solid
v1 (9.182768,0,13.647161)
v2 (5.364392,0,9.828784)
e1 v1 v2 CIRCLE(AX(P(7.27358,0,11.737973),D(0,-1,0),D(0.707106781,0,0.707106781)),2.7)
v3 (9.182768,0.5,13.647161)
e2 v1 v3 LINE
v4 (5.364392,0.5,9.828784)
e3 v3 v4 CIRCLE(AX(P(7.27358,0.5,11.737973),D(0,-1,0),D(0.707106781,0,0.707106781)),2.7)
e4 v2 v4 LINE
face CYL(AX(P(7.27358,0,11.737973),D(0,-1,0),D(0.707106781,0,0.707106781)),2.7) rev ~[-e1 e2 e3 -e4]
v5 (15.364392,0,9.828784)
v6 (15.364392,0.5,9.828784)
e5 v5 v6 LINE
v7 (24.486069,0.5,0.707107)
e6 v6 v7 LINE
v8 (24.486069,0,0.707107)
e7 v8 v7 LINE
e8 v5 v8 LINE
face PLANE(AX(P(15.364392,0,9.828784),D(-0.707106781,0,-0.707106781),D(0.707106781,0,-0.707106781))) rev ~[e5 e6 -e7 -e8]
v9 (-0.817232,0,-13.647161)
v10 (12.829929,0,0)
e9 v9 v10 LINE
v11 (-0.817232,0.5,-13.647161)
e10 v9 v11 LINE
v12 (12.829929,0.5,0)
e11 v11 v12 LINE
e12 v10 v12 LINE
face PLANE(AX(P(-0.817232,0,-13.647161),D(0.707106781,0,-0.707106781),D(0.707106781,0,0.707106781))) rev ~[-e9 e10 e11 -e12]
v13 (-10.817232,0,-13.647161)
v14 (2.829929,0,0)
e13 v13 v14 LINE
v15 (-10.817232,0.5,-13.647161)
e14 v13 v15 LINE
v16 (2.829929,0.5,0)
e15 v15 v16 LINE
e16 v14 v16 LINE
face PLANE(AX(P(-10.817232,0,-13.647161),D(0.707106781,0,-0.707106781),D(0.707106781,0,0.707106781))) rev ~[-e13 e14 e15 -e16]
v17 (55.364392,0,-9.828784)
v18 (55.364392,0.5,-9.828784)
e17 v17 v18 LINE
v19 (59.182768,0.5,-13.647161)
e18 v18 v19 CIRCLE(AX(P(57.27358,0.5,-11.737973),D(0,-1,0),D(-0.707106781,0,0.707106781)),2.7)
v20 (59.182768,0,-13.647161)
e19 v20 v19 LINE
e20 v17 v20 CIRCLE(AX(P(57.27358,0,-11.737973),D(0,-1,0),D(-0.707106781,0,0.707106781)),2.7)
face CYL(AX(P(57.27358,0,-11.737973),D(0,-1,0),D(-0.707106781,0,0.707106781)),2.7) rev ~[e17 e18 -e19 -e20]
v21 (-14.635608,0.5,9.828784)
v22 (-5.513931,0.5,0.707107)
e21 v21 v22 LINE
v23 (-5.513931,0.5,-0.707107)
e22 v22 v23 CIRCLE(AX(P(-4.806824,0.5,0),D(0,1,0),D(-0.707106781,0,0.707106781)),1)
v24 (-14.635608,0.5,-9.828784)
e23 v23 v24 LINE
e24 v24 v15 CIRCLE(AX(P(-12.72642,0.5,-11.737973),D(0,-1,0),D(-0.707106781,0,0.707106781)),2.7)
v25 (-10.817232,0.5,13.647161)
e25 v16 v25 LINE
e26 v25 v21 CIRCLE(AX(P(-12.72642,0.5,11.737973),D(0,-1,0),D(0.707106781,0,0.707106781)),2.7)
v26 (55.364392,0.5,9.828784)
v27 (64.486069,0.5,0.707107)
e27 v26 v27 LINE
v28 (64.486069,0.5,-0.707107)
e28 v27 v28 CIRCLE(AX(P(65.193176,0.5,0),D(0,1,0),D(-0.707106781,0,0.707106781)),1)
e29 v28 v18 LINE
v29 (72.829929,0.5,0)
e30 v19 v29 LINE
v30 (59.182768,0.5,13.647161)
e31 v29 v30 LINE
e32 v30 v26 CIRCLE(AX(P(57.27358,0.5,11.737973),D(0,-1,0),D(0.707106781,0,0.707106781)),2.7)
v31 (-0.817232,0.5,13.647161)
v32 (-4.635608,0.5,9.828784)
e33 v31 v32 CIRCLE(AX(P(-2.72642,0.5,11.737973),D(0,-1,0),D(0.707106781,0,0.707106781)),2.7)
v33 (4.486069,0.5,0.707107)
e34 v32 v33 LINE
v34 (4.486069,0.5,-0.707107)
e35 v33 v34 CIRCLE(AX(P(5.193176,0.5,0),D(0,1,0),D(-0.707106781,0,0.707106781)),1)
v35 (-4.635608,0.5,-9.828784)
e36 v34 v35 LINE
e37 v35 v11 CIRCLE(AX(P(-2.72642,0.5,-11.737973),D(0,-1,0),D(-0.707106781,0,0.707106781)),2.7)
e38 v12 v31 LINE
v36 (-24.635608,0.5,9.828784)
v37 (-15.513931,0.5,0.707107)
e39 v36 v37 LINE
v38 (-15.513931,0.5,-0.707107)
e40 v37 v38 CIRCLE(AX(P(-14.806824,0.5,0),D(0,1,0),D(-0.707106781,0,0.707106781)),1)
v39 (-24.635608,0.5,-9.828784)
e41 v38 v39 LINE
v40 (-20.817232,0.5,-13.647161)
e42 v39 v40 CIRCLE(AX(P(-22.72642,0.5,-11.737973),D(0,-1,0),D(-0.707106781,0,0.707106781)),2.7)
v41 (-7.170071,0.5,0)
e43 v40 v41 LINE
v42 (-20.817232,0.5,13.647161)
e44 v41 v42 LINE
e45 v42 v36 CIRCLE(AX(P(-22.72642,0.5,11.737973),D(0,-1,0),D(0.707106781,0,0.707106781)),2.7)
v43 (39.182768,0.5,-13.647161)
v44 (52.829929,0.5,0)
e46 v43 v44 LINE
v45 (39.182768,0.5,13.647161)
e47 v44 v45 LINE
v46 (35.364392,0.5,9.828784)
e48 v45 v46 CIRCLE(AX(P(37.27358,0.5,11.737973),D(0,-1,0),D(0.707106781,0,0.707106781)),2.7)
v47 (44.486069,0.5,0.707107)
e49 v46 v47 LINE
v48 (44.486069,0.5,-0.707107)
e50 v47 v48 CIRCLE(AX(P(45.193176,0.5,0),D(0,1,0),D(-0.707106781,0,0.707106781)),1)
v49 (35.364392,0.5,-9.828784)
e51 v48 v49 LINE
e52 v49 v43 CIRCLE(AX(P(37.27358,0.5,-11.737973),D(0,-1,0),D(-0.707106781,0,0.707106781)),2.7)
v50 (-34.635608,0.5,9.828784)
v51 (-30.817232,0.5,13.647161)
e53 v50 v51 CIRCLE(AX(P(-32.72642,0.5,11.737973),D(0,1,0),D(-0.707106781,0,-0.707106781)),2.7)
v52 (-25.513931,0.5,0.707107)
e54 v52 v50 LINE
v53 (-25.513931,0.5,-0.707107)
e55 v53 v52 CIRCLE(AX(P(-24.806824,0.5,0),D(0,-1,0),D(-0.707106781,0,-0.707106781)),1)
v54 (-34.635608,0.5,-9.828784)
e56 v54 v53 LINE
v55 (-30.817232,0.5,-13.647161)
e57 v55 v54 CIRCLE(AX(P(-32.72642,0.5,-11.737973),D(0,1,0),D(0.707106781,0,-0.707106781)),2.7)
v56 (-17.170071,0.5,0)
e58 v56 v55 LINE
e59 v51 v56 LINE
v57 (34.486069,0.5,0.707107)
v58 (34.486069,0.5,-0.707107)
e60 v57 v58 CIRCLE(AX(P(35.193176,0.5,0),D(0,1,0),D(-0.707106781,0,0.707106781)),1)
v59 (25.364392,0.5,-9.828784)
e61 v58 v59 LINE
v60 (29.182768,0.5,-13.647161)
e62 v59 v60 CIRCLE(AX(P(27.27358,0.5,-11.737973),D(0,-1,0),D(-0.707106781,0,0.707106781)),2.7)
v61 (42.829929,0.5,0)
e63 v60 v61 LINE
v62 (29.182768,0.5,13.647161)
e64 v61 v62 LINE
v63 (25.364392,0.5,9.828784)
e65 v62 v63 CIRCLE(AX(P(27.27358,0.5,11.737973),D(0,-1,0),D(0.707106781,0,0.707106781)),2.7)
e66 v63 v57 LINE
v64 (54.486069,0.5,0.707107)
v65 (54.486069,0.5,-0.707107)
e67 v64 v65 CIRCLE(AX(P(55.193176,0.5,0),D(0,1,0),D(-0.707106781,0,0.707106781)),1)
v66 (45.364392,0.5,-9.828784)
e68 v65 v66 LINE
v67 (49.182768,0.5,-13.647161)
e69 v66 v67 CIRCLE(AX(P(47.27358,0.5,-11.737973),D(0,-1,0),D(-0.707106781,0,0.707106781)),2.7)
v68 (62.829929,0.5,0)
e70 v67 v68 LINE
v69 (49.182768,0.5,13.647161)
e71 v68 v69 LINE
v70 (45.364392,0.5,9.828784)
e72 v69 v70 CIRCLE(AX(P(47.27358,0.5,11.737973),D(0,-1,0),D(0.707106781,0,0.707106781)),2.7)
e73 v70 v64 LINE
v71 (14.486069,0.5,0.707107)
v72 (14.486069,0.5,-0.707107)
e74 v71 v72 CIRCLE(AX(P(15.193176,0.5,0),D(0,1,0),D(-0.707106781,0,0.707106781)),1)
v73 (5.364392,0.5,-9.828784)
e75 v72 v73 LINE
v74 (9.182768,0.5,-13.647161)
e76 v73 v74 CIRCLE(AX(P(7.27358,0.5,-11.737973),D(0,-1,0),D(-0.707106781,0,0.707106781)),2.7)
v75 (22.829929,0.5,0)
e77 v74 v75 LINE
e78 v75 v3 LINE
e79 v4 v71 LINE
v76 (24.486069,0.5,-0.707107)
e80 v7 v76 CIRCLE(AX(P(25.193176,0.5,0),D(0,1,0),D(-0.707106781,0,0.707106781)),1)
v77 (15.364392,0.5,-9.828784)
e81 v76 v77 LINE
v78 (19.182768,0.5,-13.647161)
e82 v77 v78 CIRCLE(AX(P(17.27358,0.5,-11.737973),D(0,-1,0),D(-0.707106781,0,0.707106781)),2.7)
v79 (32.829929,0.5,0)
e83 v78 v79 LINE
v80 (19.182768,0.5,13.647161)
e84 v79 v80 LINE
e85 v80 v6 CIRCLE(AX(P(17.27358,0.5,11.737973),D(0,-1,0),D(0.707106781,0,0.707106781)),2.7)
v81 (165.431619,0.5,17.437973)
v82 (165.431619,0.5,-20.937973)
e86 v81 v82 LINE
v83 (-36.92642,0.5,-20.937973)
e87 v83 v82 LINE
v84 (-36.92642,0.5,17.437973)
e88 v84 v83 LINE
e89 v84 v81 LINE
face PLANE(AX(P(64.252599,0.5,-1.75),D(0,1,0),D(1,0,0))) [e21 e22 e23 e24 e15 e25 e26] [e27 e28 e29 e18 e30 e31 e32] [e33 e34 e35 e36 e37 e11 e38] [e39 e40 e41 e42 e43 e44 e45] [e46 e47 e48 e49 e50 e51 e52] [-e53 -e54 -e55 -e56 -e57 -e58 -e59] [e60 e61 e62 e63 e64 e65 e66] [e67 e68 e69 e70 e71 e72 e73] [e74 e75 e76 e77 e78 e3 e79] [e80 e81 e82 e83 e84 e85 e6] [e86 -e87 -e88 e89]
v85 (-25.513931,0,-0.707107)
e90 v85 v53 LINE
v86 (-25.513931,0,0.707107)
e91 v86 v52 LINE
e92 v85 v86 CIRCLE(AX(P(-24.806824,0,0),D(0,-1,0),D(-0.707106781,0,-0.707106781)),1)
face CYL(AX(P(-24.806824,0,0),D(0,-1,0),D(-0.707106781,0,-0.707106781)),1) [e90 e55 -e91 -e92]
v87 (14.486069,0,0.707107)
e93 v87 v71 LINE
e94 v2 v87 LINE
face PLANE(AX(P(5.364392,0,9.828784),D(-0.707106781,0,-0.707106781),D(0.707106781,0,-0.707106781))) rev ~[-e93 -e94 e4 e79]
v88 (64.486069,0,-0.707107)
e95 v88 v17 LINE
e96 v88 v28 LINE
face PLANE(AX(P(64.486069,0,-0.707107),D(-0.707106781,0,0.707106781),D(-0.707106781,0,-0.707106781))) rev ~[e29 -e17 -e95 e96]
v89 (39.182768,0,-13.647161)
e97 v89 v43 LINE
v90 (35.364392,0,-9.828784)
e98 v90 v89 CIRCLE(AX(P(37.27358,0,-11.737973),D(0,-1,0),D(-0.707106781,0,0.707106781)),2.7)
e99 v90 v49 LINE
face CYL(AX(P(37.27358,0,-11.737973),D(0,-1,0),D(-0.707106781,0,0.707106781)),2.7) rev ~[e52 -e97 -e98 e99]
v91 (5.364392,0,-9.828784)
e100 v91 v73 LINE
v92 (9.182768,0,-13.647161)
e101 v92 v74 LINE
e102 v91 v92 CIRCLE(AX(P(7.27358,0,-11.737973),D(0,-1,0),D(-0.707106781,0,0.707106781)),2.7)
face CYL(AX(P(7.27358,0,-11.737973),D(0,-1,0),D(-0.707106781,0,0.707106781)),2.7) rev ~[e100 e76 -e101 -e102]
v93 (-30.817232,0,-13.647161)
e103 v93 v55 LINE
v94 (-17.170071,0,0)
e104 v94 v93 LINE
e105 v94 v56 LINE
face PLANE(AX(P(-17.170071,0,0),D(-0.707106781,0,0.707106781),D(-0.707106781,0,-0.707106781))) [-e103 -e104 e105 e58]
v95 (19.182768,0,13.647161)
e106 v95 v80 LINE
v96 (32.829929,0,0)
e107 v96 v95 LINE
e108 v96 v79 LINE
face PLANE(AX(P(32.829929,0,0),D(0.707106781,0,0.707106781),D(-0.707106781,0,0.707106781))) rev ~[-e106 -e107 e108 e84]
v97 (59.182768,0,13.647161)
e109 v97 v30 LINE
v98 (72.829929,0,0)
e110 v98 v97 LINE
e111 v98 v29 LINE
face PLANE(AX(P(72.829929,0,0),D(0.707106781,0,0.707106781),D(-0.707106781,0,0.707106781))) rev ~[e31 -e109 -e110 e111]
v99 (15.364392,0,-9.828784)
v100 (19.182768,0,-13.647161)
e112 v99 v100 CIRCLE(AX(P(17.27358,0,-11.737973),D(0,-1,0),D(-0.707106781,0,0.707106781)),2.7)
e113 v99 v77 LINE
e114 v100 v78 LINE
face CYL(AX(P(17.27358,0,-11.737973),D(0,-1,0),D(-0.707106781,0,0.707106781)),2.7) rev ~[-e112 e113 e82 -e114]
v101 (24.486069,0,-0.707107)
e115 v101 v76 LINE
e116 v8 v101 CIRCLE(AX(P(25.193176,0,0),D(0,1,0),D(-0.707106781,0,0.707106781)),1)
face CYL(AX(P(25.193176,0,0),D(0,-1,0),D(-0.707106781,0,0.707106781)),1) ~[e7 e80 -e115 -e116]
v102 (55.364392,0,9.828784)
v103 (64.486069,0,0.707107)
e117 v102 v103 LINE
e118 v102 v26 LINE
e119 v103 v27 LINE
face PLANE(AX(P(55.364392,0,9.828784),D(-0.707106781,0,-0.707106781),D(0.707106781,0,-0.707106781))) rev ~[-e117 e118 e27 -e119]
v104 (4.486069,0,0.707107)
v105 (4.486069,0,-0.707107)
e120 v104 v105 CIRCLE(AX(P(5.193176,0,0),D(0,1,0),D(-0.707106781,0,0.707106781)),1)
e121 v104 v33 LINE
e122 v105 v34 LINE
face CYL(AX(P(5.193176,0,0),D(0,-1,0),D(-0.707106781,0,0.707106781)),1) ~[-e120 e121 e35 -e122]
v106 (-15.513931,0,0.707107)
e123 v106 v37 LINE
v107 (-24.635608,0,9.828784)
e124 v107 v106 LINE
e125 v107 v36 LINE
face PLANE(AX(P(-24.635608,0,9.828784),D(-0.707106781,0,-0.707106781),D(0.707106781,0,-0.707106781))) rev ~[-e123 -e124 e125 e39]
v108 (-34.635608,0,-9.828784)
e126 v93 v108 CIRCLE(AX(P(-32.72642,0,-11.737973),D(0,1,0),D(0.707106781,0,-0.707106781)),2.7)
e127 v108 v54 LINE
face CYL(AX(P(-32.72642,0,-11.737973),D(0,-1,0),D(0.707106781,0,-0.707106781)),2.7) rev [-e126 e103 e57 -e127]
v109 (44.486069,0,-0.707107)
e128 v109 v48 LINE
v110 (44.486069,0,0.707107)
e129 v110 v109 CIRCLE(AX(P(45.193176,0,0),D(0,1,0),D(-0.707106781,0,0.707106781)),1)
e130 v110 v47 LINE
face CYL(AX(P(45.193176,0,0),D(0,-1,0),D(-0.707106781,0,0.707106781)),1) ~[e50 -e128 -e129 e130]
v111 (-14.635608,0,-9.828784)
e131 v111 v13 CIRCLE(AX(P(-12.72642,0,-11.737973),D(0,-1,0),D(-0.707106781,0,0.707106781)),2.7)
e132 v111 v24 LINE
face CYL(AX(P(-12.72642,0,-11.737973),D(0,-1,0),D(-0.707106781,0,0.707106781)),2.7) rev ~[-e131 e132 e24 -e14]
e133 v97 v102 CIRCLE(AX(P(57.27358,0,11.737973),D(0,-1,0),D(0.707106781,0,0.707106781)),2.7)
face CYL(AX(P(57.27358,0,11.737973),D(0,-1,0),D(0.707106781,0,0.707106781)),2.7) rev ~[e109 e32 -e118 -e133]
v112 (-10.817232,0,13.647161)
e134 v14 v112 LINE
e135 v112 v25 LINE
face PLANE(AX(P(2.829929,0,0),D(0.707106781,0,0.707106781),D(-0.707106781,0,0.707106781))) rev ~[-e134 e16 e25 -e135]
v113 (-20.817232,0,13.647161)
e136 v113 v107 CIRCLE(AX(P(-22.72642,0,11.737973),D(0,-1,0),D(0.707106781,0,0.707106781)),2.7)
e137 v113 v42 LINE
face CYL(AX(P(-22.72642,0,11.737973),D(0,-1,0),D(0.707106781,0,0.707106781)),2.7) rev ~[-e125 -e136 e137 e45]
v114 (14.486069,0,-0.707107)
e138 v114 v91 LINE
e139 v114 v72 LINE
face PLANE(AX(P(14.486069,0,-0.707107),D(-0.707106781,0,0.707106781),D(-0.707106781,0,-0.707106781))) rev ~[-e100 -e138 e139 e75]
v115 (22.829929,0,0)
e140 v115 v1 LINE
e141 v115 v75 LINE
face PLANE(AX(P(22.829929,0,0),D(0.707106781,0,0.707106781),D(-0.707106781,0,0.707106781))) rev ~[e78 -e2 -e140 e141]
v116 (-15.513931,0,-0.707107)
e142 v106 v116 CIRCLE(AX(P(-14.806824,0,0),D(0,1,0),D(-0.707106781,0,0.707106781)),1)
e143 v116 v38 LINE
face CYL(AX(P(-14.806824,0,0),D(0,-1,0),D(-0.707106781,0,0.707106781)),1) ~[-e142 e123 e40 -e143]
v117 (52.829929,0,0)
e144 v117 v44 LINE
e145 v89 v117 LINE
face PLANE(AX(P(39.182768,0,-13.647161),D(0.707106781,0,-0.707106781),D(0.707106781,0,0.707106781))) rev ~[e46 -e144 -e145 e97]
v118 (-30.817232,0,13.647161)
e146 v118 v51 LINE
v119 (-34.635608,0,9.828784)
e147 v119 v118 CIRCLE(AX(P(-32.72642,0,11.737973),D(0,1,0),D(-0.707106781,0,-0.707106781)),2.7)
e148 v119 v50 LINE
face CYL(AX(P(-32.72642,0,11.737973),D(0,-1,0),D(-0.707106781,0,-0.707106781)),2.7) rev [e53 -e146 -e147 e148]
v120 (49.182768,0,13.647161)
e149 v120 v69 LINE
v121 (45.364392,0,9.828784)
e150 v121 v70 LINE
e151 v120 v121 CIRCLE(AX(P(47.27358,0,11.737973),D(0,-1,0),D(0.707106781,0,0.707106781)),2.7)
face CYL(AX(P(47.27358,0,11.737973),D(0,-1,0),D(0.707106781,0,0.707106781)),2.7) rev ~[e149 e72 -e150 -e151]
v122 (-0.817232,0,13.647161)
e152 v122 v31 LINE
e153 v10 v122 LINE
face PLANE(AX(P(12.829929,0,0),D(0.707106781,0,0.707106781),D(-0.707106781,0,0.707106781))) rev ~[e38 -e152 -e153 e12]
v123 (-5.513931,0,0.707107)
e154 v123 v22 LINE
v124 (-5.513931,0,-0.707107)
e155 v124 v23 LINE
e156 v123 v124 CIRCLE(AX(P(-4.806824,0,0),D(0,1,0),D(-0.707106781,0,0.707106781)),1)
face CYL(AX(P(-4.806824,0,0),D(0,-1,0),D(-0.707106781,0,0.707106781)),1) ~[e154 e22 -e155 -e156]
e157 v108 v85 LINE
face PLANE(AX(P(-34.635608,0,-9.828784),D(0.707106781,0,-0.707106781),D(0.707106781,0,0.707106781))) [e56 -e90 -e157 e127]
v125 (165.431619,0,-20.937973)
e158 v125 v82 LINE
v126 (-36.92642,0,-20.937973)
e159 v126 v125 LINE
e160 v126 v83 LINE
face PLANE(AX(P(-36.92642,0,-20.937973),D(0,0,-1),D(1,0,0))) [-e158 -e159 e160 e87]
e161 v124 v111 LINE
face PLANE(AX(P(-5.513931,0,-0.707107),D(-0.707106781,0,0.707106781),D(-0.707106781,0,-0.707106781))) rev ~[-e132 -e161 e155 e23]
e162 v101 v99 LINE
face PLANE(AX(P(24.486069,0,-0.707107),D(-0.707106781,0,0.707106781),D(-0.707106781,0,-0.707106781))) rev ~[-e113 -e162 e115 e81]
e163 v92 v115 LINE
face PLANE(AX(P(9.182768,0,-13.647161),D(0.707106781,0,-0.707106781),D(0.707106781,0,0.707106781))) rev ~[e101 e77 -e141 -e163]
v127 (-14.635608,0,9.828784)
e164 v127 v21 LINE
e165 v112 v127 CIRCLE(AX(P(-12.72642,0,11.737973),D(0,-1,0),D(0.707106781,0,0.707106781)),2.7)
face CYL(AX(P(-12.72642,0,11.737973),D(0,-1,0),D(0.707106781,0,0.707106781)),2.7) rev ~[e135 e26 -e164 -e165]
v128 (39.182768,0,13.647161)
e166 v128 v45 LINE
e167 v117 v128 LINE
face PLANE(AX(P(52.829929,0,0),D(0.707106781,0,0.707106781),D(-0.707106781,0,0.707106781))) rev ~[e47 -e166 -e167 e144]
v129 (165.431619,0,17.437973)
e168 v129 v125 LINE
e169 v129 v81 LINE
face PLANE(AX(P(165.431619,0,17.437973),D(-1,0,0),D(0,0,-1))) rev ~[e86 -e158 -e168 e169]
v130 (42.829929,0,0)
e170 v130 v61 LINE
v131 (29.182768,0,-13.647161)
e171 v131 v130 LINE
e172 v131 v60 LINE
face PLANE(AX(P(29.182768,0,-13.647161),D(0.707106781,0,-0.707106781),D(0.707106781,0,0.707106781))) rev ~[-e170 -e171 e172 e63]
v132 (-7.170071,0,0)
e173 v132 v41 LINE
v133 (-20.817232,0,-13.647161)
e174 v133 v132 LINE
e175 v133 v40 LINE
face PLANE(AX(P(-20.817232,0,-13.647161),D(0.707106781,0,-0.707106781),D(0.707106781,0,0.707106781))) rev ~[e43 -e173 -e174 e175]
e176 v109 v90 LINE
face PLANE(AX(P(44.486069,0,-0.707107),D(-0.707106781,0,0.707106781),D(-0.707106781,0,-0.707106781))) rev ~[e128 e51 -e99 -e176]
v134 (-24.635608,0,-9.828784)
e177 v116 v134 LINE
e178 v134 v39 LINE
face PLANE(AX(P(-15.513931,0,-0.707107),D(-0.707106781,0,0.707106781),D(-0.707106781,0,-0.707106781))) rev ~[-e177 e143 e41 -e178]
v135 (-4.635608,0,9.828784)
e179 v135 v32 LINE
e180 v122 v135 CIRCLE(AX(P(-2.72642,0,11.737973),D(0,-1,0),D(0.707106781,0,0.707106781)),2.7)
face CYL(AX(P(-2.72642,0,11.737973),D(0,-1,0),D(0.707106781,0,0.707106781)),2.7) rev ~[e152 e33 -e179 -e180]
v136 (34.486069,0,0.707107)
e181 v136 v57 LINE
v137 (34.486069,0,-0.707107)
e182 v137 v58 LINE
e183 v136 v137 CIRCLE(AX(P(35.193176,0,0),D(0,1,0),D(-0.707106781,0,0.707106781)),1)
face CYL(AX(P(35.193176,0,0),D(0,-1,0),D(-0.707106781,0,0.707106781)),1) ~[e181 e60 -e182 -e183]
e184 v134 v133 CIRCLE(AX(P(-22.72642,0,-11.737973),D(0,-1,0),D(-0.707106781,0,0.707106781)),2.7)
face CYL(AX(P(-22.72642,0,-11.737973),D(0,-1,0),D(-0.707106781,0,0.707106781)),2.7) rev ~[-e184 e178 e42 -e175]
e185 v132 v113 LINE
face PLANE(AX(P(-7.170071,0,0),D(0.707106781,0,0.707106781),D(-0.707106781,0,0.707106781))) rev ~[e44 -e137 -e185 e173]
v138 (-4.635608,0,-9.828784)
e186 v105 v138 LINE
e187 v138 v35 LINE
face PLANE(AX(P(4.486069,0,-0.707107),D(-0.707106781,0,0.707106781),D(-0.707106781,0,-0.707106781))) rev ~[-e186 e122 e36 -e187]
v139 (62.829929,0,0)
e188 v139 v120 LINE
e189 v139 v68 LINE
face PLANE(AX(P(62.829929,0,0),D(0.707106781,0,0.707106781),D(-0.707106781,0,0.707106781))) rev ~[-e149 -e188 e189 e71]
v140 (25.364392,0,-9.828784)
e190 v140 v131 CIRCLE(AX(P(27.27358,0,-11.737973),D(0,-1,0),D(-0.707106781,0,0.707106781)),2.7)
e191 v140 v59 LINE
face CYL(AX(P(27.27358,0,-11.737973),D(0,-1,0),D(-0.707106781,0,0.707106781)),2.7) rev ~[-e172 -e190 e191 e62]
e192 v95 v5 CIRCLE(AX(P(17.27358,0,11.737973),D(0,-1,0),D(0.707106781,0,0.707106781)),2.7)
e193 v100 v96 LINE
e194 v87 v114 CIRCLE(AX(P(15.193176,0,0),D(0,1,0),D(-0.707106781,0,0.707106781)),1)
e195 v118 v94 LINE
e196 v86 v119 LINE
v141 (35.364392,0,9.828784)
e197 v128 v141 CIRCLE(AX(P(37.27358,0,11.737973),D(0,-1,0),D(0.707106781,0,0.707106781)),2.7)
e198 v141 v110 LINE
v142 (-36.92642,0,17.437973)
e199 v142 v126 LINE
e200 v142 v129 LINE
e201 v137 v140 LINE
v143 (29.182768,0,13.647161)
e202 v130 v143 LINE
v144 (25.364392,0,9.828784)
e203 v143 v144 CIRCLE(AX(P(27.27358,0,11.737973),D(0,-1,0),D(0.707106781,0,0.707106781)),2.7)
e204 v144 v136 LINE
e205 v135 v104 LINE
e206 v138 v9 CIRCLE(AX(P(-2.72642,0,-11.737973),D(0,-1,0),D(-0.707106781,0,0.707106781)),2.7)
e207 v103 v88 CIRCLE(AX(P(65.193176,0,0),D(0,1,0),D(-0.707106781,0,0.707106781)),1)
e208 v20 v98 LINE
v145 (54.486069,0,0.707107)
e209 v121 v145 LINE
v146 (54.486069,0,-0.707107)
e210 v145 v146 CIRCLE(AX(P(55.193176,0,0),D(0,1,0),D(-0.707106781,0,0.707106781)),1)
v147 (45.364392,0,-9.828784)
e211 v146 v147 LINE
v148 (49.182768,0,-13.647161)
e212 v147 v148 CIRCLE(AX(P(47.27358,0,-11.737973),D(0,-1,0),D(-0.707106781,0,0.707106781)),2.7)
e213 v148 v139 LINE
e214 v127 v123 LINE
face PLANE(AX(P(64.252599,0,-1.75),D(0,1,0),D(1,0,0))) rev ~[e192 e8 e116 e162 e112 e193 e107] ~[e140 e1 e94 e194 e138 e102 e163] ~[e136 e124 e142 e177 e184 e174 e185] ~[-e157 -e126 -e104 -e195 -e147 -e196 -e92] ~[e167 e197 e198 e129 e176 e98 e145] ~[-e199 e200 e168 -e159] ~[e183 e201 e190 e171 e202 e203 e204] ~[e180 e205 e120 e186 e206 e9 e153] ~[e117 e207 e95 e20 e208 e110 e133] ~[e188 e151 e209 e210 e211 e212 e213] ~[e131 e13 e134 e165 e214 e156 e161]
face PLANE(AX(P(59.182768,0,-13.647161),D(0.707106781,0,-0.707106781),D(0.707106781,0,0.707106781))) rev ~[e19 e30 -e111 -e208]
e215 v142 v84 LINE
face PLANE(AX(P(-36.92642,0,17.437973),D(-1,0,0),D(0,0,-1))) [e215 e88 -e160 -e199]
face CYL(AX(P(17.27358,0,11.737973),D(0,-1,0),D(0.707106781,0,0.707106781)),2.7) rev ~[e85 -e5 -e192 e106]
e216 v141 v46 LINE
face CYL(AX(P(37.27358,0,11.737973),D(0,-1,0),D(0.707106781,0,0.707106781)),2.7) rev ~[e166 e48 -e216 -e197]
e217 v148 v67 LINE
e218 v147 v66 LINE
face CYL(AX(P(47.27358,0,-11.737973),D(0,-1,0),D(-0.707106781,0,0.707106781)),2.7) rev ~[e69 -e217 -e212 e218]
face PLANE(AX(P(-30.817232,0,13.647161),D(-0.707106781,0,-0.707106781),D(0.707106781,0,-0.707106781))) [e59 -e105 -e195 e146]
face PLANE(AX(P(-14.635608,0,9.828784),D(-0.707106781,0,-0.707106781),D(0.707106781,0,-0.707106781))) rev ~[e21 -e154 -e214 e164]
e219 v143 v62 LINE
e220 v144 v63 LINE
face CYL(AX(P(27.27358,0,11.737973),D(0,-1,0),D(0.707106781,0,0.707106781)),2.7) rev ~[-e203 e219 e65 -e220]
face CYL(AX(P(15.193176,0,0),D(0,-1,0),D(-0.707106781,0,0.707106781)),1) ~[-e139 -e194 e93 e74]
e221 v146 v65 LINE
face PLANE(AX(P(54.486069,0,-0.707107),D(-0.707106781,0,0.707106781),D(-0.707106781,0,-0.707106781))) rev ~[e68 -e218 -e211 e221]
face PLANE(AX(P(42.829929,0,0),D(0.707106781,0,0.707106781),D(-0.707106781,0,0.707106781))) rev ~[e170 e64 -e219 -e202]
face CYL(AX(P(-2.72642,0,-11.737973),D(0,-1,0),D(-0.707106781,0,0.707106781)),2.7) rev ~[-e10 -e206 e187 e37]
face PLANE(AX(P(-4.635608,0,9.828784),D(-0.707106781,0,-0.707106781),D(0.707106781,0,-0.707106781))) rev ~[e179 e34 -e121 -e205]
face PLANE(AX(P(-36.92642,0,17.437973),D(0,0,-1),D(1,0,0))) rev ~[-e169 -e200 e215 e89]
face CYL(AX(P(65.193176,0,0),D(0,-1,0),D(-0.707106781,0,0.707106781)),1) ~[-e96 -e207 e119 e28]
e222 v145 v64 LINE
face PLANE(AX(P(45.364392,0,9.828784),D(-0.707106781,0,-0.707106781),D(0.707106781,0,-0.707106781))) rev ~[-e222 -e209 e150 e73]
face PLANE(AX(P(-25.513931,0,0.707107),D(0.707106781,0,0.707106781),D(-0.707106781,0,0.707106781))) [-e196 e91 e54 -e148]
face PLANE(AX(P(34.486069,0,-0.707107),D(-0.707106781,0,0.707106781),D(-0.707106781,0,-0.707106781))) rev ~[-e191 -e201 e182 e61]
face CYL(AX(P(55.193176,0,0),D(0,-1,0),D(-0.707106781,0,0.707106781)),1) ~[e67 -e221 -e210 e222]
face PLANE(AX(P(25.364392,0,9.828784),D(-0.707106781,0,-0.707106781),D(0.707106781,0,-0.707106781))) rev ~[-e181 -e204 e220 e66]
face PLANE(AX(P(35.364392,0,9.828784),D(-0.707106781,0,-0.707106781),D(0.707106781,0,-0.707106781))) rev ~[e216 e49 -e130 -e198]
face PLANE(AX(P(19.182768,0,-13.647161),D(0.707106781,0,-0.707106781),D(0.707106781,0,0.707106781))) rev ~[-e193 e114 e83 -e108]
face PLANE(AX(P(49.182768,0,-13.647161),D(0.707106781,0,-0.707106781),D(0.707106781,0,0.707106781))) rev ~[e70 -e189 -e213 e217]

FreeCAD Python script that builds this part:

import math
import FreeCAD as App
import Part
import Sketcher

V = App.Vector

doc = App.newDocument("Part")
body = doc.addObject("PartDesign::Body", "Body")

sketch1 = body.newObject("Sketcher::SketchObject", "Sketch")
sketch1.AttachmentSupport = (doc.getObject("XZ_Plane"), [""])
sketch1.MapMode = "FlatFace"
sketch1.addGeometry(Part.LineSegment(V(-36.92642, -20.937973, 0), V(-36.92642, 17.437973, 0)), False)
sketch1.addGeometry(Part.LineSegment(V(-36.92642, 17.437973, 0), V(165.431619, 17.437973, 0)), False)
sketch1.addGeometry(Part.LineSegment(V(165.431619, 17.437973, 0), V(165.431619, -20.937973, 0)), False)
sketch1.addGeometry(Part.LineSegment(V(165.431619, -20.937973, 0), V(-36.92642, -20.937973, 0)), False)
sketch1.addGeometry(Part.LineSegment(V(-25.513931, -0.707107, 0), V(-34.635608, -9.828784, 0)), False)
sketch1.addGeometry(Part.ArcOfCircle(Part.Circle(V(-32.72642, -11.737973, 0), V(0, 0, 1), 2.7), math.radians(135), math.radians(315)), False)
sketch1.addGeometry(Part.LineSegment(V(-30.817232, -13.647161, 0), V(-17.170071, 0, 0)), False)
sketch1.addGeometry(Part.LineSegment(V(-17.170071, 0, 0), V(-30.817232, 13.647161, 0)), False)
sketch1.addGeometry(Part.ArcOfCircle(Part.Circle(V(-32.72642, 11.737973, 0), V(0, 0, 1), 2.7), math.radians(45), math.radians(225)), False)
sketch1.addGeometry(Part.LineSegment(V(-34.635608, 9.828784, 0), V(-25.513931, 0.707107, 0)), False)
sketch1.addGeometry(Part.ArcOfCircle(Part.Circle(V(-24.806824, 0, 0), V(0, 0, 1), 1), math.radians(-135), math.radians(135)), False)
sketch1.addGeometry(Part.ArcOfCircle(Part.Circle(V(-22.72642, -11.737973, 0), V(0, 0, 1), 2.7), math.radians(135), math.radians(315)), False)
sketch1.addGeometry(Part.LineSegment(V(-20.817232, -13.647161, 0), V(-7.170071, 0, 0)), False)
sketch1.addGeometry(Part.LineSegment(V(-7.170071, 0, 0), V(-20.817232, 13.647161, 0)), False)
sketch1.addGeometry(Part.ArcOfCircle(Part.Circle(V(-22.72642, 11.737973, 0), V(0, 0, 1), 2.7), math.radians(45), math.radians(225)), False)
sketch1.addGeometry(Part.LineSegment(V(-24.635608, 9.828784, 0), V(-15.513931, 0.707107, 0)), False)
sketch1.addGeometry(Part.ArcOfCircle(Part.Circle(V(-14.806824, 0, 0), V(0, 0, 1), 1), math.radians(-135), math.radians(135)), False)
sketch1.addGeometry(Part.LineSegment(V(-15.513931, -0.707107, 0), V(-24.635608, -9.828784, 0)), False)
sketch1.addGeometry(Part.ArcOfCircle(Part.Circle(V(-12.72642, -11.737973, 0), V(0, 0, 1), 2.7), math.radians(135), math.radians(315)), False)
sketch1.addGeometry(Part.LineSegment(V(-10.817232, -13.647161, 0), V(2.829929, 0, 0)), False)
sketch1.addGeometry(Part.LineSegment(V(2.829929, 0, 0), V(-10.817232, 13.647161, 0)), False)
sketch1.addGeometry(Part.ArcOfCircle(Part.Circle(V(-12.72642, 11.737973, 0), V(0, 0, 1), 2.7), math.radians(45), math.radians(225)), False)
sketch1.addGeometry(Part.LineSegment(V(-14.635608, 9.828784, 0), V(-5.513931, 0.707107, 0)), False)
sketch1.addGeometry(Part.ArcOfCircle(Part.Circle(V(-4.806824, 0, 0), V(0, 0, 1), 1), math.radians(-135), math.radians(135)), False)
sketch1.addGeometry(Part.LineSegment(V(-5.513931, -0.707107, 0), V(-14.635608, -9.828784, 0)), False)
sketch1.addGeometry(Part.ArcOfCircle(Part.Circle(V(-2.72642, -11.737973, 0), V(0, 0, 1), 2.7), math.radians(135), math.radians(315)), False)
sketch1.addGeometry(Part.LineSegment(V(-0.817232, -13.647161, 0), V(12.829929, 0, 0)), False)
sketch1.addGeometry(Part.LineSegment(V(12.829929, 0, 0), V(-0.817232, 13.647161, 0)), False)
sketch1.addGeometry(Part.ArcOfCircle(Part.Circle(V(-2.72642, 11.737973, 0), V(0, 0, 1), 2.7), math.radians(45), math.radians(225)), False)
sketch1.addGeometry(Part.LineSegment(V(-4.635608, 9.828784, 0), V(4.486069, 0.707107, 0)), False)
sketch1.addGeometry(Part.ArcOfCircle(Part.Circle(V(5.193176, 0, 0), V(0, 0, 1), 1), math.radians(-135), math.radians(135)), False)
sketch1.addGeometry(Part.LineSegment(V(4.486069, -0.707107, 0), V(-4.635608, -9.828784, 0)), False)
sketch1.addGeometry(Part.ArcOfCircle(Part.Circle(V(7.27358, -11.737973, 0), V(0, 0, 1), 2.7), math.radians(135), math.radians(315)), False)
sketch1.addGeometry(Part.LineSegment(V(9.182768, -13.647161, 0), V(22.829929, 0, 0)), False)
sketch1.addGeometry(Part.LineSegment(V(22.829929, 0, 0), V(9.182768, 13.647161, 0)), False)
sketch1.addGeometry(Part.ArcOfCircle(Part.Circle(V(7.27358, 11.737973, 0), V(0, 0, 1), 2.7), math.radians(45), math.radians(225)), False)
sketch1.addGeometry(Part.LineSegment(V(5.364392, 9.828784, 0), V(14.486069, 0.707107, 0)), False)
sketch1.addGeometry(Part.ArcOfCircle(Part.Circle(V(15.193176, 0, 0), V(0, 0, 1), 1), math.radians(-135), math.radians(135)), False)
sketch1.addGeometry(Part.LineSegment(V(14.486069, -0.707107, 0), V(5.364392, -9.828784, 0)), False)
sketch1.addGeometry(Part.ArcOfCircle(Part.Circle(V(17.27358, -11.737973, 0), V(0, 0, 1), 2.7), math.radians(135), math.radians(315)), False)
sketch1.addGeometry(Part.LineSegment(V(19.182768, -13.647161, 0), V(32.829929, 0, 0)), False)
sketch1.addGeometry(Part.LineSegment(V(32.829929, 0, 0), V(19.182768, 13.647161, 0)), False)
sketch1.addGeometry(Part.ArcOfCircle(Part.Circle(V(17.27358, 11.737973, 0), V(0, 0, 1), 2.7), math.radians(45), math.radians(225)), False)
sketch1.addGeometry(Part.LineSegment(V(15.364392, 9.828784, 0), V(24.486069, 0.707107, 0)), False)
sketch1.addGeometry(Part.ArcOfCircle(Part.Circle(V(25.193176, 0, 0), V(0, 0, 1), 1), math.radians(-135), math.radians(135)), False)
sketch1.addGeometry(Part.LineSegment(V(24.486069, -0.707107, 0), V(15.364392, -9.828784, 0)), False)
sketch1.addGeometry(Part.ArcOfCircle(Part.Circle(V(27.27358, -11.737973, 0), V(0, 0, 1), 2.7), math.radians(135), math.radians(315)), False)
sketch1.addGeometry(Part.LineSegment(V(29.182768, -13.647161, 0), V(42.829929, 0, 0)), False)
sketch1.addGeometry(Part.LineSegment(V(42.829929, 0, 0), V(29.182768, 13.647161, 0)), False)
sketch1.addGeometry(Part.ArcOfCircle(Part.Circle(V(27.27358, 11.737973, 0), V(0, 0, 1), 2.7), math.radians(45), math.radians(225)), False)
sketch1.addGeometry(Part.LineSegment(V(25.364392, 9.828784, 0), V(34.486069, 0.707107, 0)), False)
sketch1.addGeometry(Part.ArcOfCircle(Part.Circle(V(35.193176, 0, 0), V(0, 0, 1), 1), math.radians(-135), math.radians(135)), False)
sketch1.addGeometry(Part.LineSegment(V(34.486069, -0.707107, 0), V(25.364392, -9.828784, 0)), False)
sketch1.addGeometry(Part.ArcOfCircle(Part.Circle(V(37.27358, -11.737973, 0), V(0, 0, 1), 2.7), math.radians(135), math.radians(315)), False)
sketch1.addGeometry(Part.LineSegment(V(39.182768, -13.647161, 0), V(52.829929, 0, 0)), False)
sketch1.addGeometry(Part.LineSegment(V(52.829929, 0, 0), V(39.182768, 13.647161, 0)), False)
sketch1.addGeometry(Part.ArcOfCircle(Part.Circle(V(37.27358, 11.737973, 0), V(0, 0, 1), 2.7), math.radians(45), math.radians(225)), False)
sketch1.addGeometry(Part.LineSegment(V(35.364392, 9.828784, 0), V(44.486069, 0.707107, 0)), False)
sketch1.addGeometry(Part.ArcOfCircle(Part.Circle(V(45.193176, 0, 0), V(0, 0, 1), 1), math.radians(-135), math.radians(135)), False)
sketch1.addGeometry(Part.LineSegment(V(44.486069, -0.707107, 0), V(35.364392, -9.828784, 0)), False)
sketch1.addGeometry(Part.ArcOfCircle(Part.Circle(V(47.27358, -11.737973, 0), V(0, 0, 1), 2.7), math.radians(135), math.radians(315)), False)
sketch1.addGeometry(Part.LineSegment(V(49.182768, -13.647161, 0), V(62.829929, 0, 0)), False)
sketch1.addGeometry(Part.LineSegment(V(62.829929, 0, 0), V(49.182768, 13.647161, 0)), False)
sketch1.addGeometry(Part.ArcOfCircle(Part.Circle(V(47.27358, 11.737973, 0), V(0, 0, 1), 2.7), math.radians(45), math.radians(225)), False)
sketch1.addGeometry(Part.LineSegment(V(45.364392, 9.828784, 0), V(54.486069, 0.707107, 0)), False)
sketch1.addGeometry(Part.ArcOfCircle(Part.Circle(V(55.193176, 0, 0), V(0, 0, 1), 1), math.radians(-135), math.radians(135)), False)
sketch1.addGeometry(Part.LineSegment(V(54.486069, -0.707107, 0), V(45.364392, -9.828784, 0)), False)
sketch1.addGeometry(Part.ArcOfCircle(Part.Circle(V(57.27358, -11.737973, 0), V(0, 0, 1), 2.7), math.radians(135), math.radians(315)), False)
sketch1.addGeometry(Part.LineSegment(V(59.182768, -13.647161, 0), V(72.829929, 0, 0)), False)
sketch1.addGeometry(Part.LineSegment(V(72.829929, 0, 0), V(59.182768, 13.647161, 0)), False)
sketch1.addGeometry(Part.ArcOfCircle(Part.Circle(V(57.27358, 11.737973, 0), V(0, 0, 1), 2.7), math.radians(45), math.radians(225)), False)
sketch1.addGeometry(Part.LineSegment(V(55.364392, 9.828784, 0), V(64.486069, 0.707107, 0)), False)
sketch1.addGeometry(Part.ArcOfCircle(Part.Circle(V(65.193176, 0, 0), V(0, 0, 1), 1), math.radians(-135), math.radians(135)), False)
sketch1.addGeometry(Part.LineSegment(V(64.486069, -0.707107, 0), V(55.364392, -9.828784, 0)), False)
sketch1.addConstraint(Sketcher.Constraint("Coincident", 0, 2, 1, 1))
sketch1.addConstraint(Sketcher.Constraint("Coincident", 1, 2, 2, 1))
sketch1.addConstraint(Sketcher.Constraint("Coincident", 2, 2, 3, 1))
sketch1.addConstraint(Sketcher.Constraint("Coincident", 3, 2, 0, 1))
sketch1.addConstraint(Sketcher.Constraint("Tangent", 4, 2, 5, 1))
sketch1.addConstraint(Sketcher.Constraint("Tangent", 5, 2, 6, 1))
sketch1.addConstraint(Sketcher.Constraint("Coincident", 6, 2, 7, 1))
sketch1.addConstraint(Sketcher.Constraint("Tangent", 7, 2, 8, 1))
sketch1.addConstraint(Sketcher.Constraint("Tangent", 8, 2, 9, 1))
sketch1.addConstraint(Sketcher.Constraint("Coincident", 9, 2, 10, 2))
sketch1.addConstraint(Sketcher.Constraint("Coincident", 10, 1, 4, 1))
sketch1.addConstraint(Sketcher.Constraint("Tangent", 11, 2, 12, 1))
sketch1.addConstraint(Sketcher.Constraint("Coincident", 12, 2, 13, 1))
sketch1.addConstraint(Sketcher.Constraint("Tangent", 13, 2, 14, 1))
sketch1.addConstraint(Sketcher.Constraint("Tangent", 14, 2, 15, 1))
sketch1.addConstraint(Sketcher.Constraint("Coincident", 15, 2, 16, 2))
sketch1.addConstraint(Sketcher.Constraint("Coincident", 16, 1, 17, 1))
sketch1.addConstraint(Sketcher.Constraint("Tangent", 17, 2, 11, 1))
sketch1.addConstraint(Sketcher.Constraint("Tangent", 18, 2, 19, 1))
sketch1.addConstraint(Sketcher.Constraint("Coincident", 19, 2, 20, 1))
sketch1.addConstraint(Sketcher.Constraint("Tangent", 20, 2, 21, 1))
sketch1.addConstraint(Sketcher.Constraint("Tangent", 21, 2, 22, 1))
sketch1.addConstraint(Sketcher.Constraint("Coincident", 22, 2, 23, 2))
sketch1.addConstraint(Sketcher.Constraint("Coincident", 23, 1, 24, 1))
sketch1.addConstraint(Sketcher.Constraint("Tangent", 24, 2, 18, 1))
sketch1.addConstraint(Sketcher.Constraint("Tangent", 25, 2, 26, 1))
sketch1.addConstraint(Sketcher.Constraint("Coincident", 26, 2, 27, 1))
sketch1.addConstraint(Sketcher.Constraint("Tangent", 27, 2, 28, 1))
sketch1.addConstraint(Sketcher.Constraint("Tangent", 28, 2, 29, 1))
sketch1.addConstraint(Sketcher.Constraint("Coincident", 29, 2, 30, 2))
sketch1.addConstraint(Sketcher.Constraint("Coincident", 30, 1, 31, 1))
sketch1.addConstraint(Sketcher.Constraint("Tangent", 31, 2, 25, 1))
sketch1.addConstraint(Sketcher.Constraint("Tangent", 32, 2, 33, 1))
sketch1.addConstraint(Sketcher.Constraint("Coincident", 33, 2, 34, 1))
sketch1.addConstraint(Sketcher.Constraint("Tangent", 34, 2, 35, 1))
sketch1.addConstraint(Sketcher.Constraint("Tangent", 35, 2, 36, 1))
sketch1.addConstraint(Sketcher.Constraint("Coincident", 36, 2, 37, 2))
sketch1.addConstraint(Sketcher.Constraint("Coincident", 37, 1, 38, 1))
sketch1.addConstraint(Sketcher.Constraint("Tangent", 38, 2, 32, 1))
sketch1.addConstraint(Sketcher.Constraint("Tangent", 39, 2, 40, 1))
sketch1.addConstraint(Sketcher.Constraint("Coincident", 40, 2, 41, 1))
sketch1.addConstraint(Sketcher.Constraint("Tangent", 41, 2, 42, 1))
sketch1.addConstraint(Sketcher.Constraint("Tangent", 42, 2, 43, 1))
sketch1.addConstraint(Sketcher.Constraint("Coincident", 43, 2, 44, 2))
sketch1.addConstraint(Sketcher.Constraint("Coincident", 44, 1, 45, 1))
sketch1.addConstraint(Sketcher.Constraint("Tangent", 45, 2, 39, 1))
sketch1.addConstraint(Sketcher.Constraint("Tangent", 46, 2, 47, 1))
sketch1.addConstraint(Sketcher.Constraint("Coincident", 47, 2, 48, 1))
sketch1.addConstraint(Sketcher.Constraint("Tangent", 48, 2, 49, 1))
sketch1.addConstraint(Sketcher.Constraint("Tangent", 49, 2, 50, 1))
sketch1.addConstraint(Sketcher.Constraint("Coincident", 50, 2, 51, 2))
sketch1.addConstraint(Sketcher.Constraint("Coincident", 51, 1, 52, 1))
sketch1.addConstraint(Sketcher.Constraint("Tangent", 52, 2, 46, 1))
sketch1.addConstraint(Sketcher.Constraint("Tangent", 53, 2, 54, 1))
sketch1.addConstraint(Sketcher.Constraint("Coincident", 54, 2, 55, 1))
sketch1.addConstraint(Sketcher.Constraint("Tangent", 55, 2, 56, 1))
sketch1.addConstraint(Sketcher.Constraint("Tangent", 56, 2, 57, 1))
sketch1.addConstraint(Sketcher.Constraint("Coincident", 57, 2, 58, 2))
sketch1.addConstraint(Sketcher.Constraint("Coincident", 58, 1, 59, 1))
sketch1.addConstraint(Sketcher.Constraint("Tangent", 59, 2, 53, 1))
sketch1.addConstraint(Sketcher.Constraint("Tangent", 60, 2, 61, 1))
sketch1.addConstraint(Sketcher.Constraint("Coincident", 61, 2, 62, 1))
sketch1.addConstraint(Sketcher.Constraint("Tangent", 62, 2, 63, 1))
sketch1.addConstraint(Sketcher.Constraint("Tangent", 63, 2, 64, 1))
sketch1.addConstraint(Sketcher.Constraint("Coincident", 64, 2, 65, 2))
sketch1.addConstraint(Sketcher.Constraint("Coincident", 65, 1, 66, 1))
sketch1.addConstraint(Sketcher.Constraint("Tangent", 66, 2, 60, 1))
sketch1.addConstraint(Sketcher.Constraint("Tangent", 67, 2, 68, 1))
sketch1.addConstraint(Sketcher.Constraint("Coincident", 68, 2, 69, 1))
sketch1.addConstraint(Sketcher.Constraint("Tangent", 69, 2, 70, 1))
sketch1.addConstraint(Sketcher.Constraint("Tangent", 70, 2, 71, 1))
sketch1.addConstraint(Sketcher.Constraint("Coincident", 71, 2, 72, 2))
sketch1.addConstraint(Sketcher.Constraint("Coincident", 72, 1, 73, 1))
sketch1.addConstraint(Sketcher.Constraint("Tangent", 73, 2, 67, 1))
sketch1.addConstraint(Sketcher.Constraint("Vertical", 0))
sketch1.addConstraint(Sketcher.Constraint("Horizontal", 1))
sketch1.addConstraint(Sketcher.Constraint("Vertical", 2))
sketch1.addConstraint(Sketcher.Constraint("Horizontal", 3))
sketch1.addConstraint(Sketcher.Constraint("Equal", 5, 8))
sketch1.addConstraint(Sketcher.Constraint("Equal", 8, 11))
sketch1.addConstraint(Sketcher.Constraint("Equal", 11, 14))
sketch1.addConstraint(Sketcher.Constraint("Equal", 10, 16))
sketch1.addConstraint(Sketcher.Constraint("Equal", 14, 18))
sketch1.addConstraint(Sketcher.Constraint("Equal", 18, 21))
sketch1.addConstraint(Sketcher.Constraint("Equal", 16, 23))
sketch1.addConstraint(Sketcher.Constraint("Equal", 21, 25))
sketch1.addConstraint(Sketcher.Constraint("Equal", 25, 28))
sketch1.addConstraint(Sketcher.Constraint("Equal", 23, 30))
sketch1.addConstraint(Sketcher.Constraint("Equal", 28, 32))
sketch1.addConstraint(Sketcher.Constraint("Equal", 32, 35))
sketch1.addConstraint(Sketcher.Constraint("Equal", 30, 37))
sketch1.addConstraint(Sketcher.Constraint("Equal", 35, 39))
sketch1.addConstraint(Sketcher.Constraint("Equal", 39, 42))
sketch1.addConstraint(Sketcher.Constraint("Equal", 37, 44))
sketch1.addConstraint(Sketcher.Constraint("Equal", 42, 46))
sketch1.addConstraint(Sketcher.Constraint("Equal", 46, 49))
sketch1.addConstraint(Sketcher.Constraint("Equal", 44, 51))
sketch1.addConstraint(Sketcher.Constraint("Equal", 49, 53))
sketch1.addConstraint(Sketcher.Constraint("Equal", 53, 56))
sketch1.addConstraint(Sketcher.Constraint("Equal", 51, 58))
sketch1.addConstraint(Sketcher.Constraint("Equal", 56, 60))
sketch1.addConstraint(Sketcher.Constraint("Equal", 60, 63))
sketch1.addConstraint(Sketcher.Constraint("Equal", 58, 65))
sketch1.addConstraint(Sketcher.Constraint("Equal", 63, 67))
sketch1.addConstraint(Sketcher.Constraint("Equal", 67, 70))
sketch1.addConstraint(Sketcher.Constraint("Equal", 65, 72))
sketch1.addConstraint(Sketcher.Constraint("Symmetric", 5, 3, 8, 3, -1))
sketch1.addConstraint(Sketcher.Constraint("Symmetric", 11, 3, 14, 3, -1))
sketch1.addConstraint(Sketcher.Constraint("Symmetric", 18, 3, 21, 3, -1))
sketch1.addConstraint(Sketcher.Constraint("Symmetric", 25, 3, 28, 3, -1))
sketch1.addConstraint(Sketcher.Constraint("Symmetric", 32, 3, 35, 3, -1))
sketch1.addConstraint(Sketcher.Constraint("Symmetric", 39, 3, 42, 3, -1))
sketch1.addConstraint(Sketcher.Constraint("Symmetric", 46, 3, 49, 3, -1))
sketch1.addConstraint(Sketcher.Constraint("Symmetric", 53, 3, 56, 3, -1))
sketch1.addConstraint(Sketcher.Constraint("Symmetric", 60, 3, 63, 3, -1))
sketch1.addConstraint(Sketcher.Constraint("Symmetric", 67, 3, 70, 3, -1))
sketch1.addConstraint(Sketcher.Constraint("Symmetric", 9, 2, 10, 1, -1))
sketch1.addConstraint(Sketcher.Constraint("Symmetric", 15, 2, 16, 1, -1))
sketch1.addConstraint(Sketcher.Constraint("Symmetric", 22, 2, 23, 1, -1))
sketch1.addConstraint(Sketcher.Constraint("Symmetric", 29, 2, 30, 1, -1))
sketch1.addConstraint(Sketcher.Constraint("Symmetric", 36, 2, 37, 1, -1))
sketch1.addConstraint(Sketcher.Constraint("Symmetric", 43, 2, 44, 1, -1))
sketch1.addConstraint(Sketcher.Constraint("Symmetric", 50, 2, 51, 1, -1))
sketch1.addConstraint(Sketcher.Constraint("Symmetric", 57, 2, 58, 1, -1))
sketch1.addConstraint(Sketcher.Constraint("Symmetric", 64, 2, 65, 1, -1))
sketch1.addConstraint(Sketcher.Constraint("Symmetric", 71, 2, 72, 1, -1))
sketch1.addConstraint(Sketcher.Constraint("PointOnObject", 6, 2, -1))
sketch1.addConstraint(Sketcher.Constraint("PointOnObject", 12, 2, -1))
sketch1.addConstraint(Sketcher.Constraint("PointOnObject", 19, 2, -1))
sketch1.addConstraint(Sketcher.Constraint("PointOnObject", 26, 2, -1))
sketch1.addConstraint(Sketcher.Constraint("PointOnObject", 33, 2, -1))
sketch1.addConstraint(Sketcher.Constraint("PointOnObject", 40, 2, -1))
sketch1.addConstraint(Sketcher.Constraint("PointOnObject", 47, 2, -1))
sketch1.addConstraint(Sketcher.Constraint("PointOnObject", 54, 2, -1))
sketch1.addConstraint(Sketcher.Constraint("PointOnObject", 61, 2, -1))
sketch1.addConstraint(Sketcher.Constraint("PointOnObject", 68, 2, -1))
sketch1.addConstraint(Sketcher.Constraint("Parallel", 4, 6))
sketch1.addConstraint(Sketcher.Constraint("Perpendicular", 6, 7))
sketch1.addConstraint(Sketcher.Constraint("Perpendicular", 9, 12))
sketch1.addConstraint(Sketcher.Constraint("Parallel", 13, 15))
sketch1.addConstraint(Sketcher.Constraint("Parallel", 17, 19))
sketch1.addConstraint(Sketcher.Constraint("Parallel", 20, 22))
sketch1.addConstraint(Sketcher.Constraint("Parallel", 24, 26))
sketch1.addConstraint(Sketcher.Constraint("Parallel", 27, 29))
sketch1.addConstraint(Sketcher.Constraint("Parallel", 31, 33))
sketch1.addConstraint(Sketcher.Constraint("Parallel", 34, 36))
sketch1.addConstraint(Sketcher.Constraint("Parallel", 38, 40))
sketch1.addConstraint(Sketcher.Constraint("Parallel", 41, 43))
sketch1.addConstraint(Sketcher.Constraint("Parallel", 45, 47))
sketch1.addConstraint(Sketcher.Constraint("Parallel", 48, 50))
sketch1.addConstraint(Sketcher.Constraint("Parallel", 52, 54))
sketch1.addConstraint(Sketcher.Constraint("Parallel", 55, 57))
sketch1.addConstraint(Sketcher.Constraint("Parallel", 59, 61))
sketch1.addConstraint(Sketcher.Constraint("Parallel", 62, 64))
sketch1.addConstraint(Sketcher.Constraint("Parallel", 66, 68))
sketch1.addConstraint(Sketcher.Constraint("Parallel", 69, 71))
sketch1.addConstraint(Sketcher.Constraint("Horizontal", 5, 3, 11, 3))
sketch1.addConstraint(Sketcher.Constraint("Horizontal", 11, 3, 18, 3))
sketch1.addConstraint(Sketcher.Constraint("Horizontal", 18, 3, 25, 3))
sketch1.addConstraint(Sketcher.Constraint("Horizontal", 25, 3, 32, 3))
sketch1.addConstraint(Sketcher.Constraint("Horizontal", 32, 3, 39, 3))
sketch1.addConstraint(Sketcher.Constraint("Horizontal", 39, 3, 46, 3))
sketch1.addConstraint(Sketcher.Constraint("Horizontal", 46, 3, 53, 3))
sketch1.addConstraint(Sketcher.Constraint("Horizontal", 53, 3, 60, 3))
sketch1.addConstraint(Sketcher.Constraint("Horizontal", 60, 3, 67, 3))
sketch1.addConstraint(Sketcher.Constraint("Horizontal", 9, 2, 15, 2))
sketch1.addConstraint(Sketcher.Constraint("Horizontal", 15, 2, 22, 2))
sketch1.addConstraint(Sketcher.Constraint("Horizontal", 22, 2, 29, 2))
sketch1.addConstraint(Sketcher.Constraint("Horizontal", 29, 2, 36, 2))
sketch1.addConstraint(Sketcher.Constraint("Horizontal", 36, 2, 43, 2))
sketch1.addConstraint(Sketcher.Constraint("Horizontal", 43, 2, 50, 2))
sketch1.addConstraint(Sketcher.Constraint("Horizontal", 50, 2, 57, 2))
sketch1.addConstraint(Sketcher.Constraint("Horizontal", 57, 2, 64, 2))
sketch1.addConstraint(Sketcher.Constraint("Horizontal", 64, 2, 71, 2))
sketch1.addConstraint(Sketcher.Constraint("Radius", 10, 1.0))
sketch1.addConstraint(Sketcher.Constraint("Radius", 5, 2.7))
sketch1.addConstraint(Sketcher.Constraint("Distance", 4, 12.9))
sketch1.addConstraint(Sketcher.Constraint("Distance", 6, 19.3))
sketch1.addConstraint(Sketcher.Constraint("DistanceX", 1, 1, 1, 2, 202.358038))
sketch1.addConstraint(Sketcher.Constraint("DistanceY", 0, 1, 0, 2, 38.375945))
sketch1.addConstraint(Sketcher.Constraint("DistanceX", 5, 3, -1, 1, 32.72642))
sketch1.addConstraint(Sketcher.Constraint("DistanceX", 11, 3, -1, 1, 22.72642))
sketch1.addConstraint(Sketcher.Constraint("DistanceX", 18, 3, -1, 1, 12.72642))
sketch1.addConstraint(Sketcher.Constraint("DistanceX", 25, 3, -1, 1, 2.72642))
sketch1.addConstraint(Sketcher.Constraint("DistanceX", -1, 1, 32, 3, 7.27358))
sketch1.addConstraint(Sketcher.Constraint("DistanceX", -1, 1, 39, 3, 17.27358))
sketch1.addConstraint(Sketcher.Constraint("DistanceX", -1, 1, 46, 3, 27.27358))
sketch1.addConstraint(Sketcher.Constraint("DistanceX", -1, 1, 53, 3, 37.27358))
sketch1.addConstraint(Sketcher.Constraint("DistanceX", -1, 1, 60, 3, 47.27358))
sketch1.addConstraint(Sketcher.Constraint("DistanceX", -1, 1, 67, 3, 57.27358))
sketch1.addConstraint(Sketcher.Constraint("DistanceX", 0, 2, -1, 1, 36.92642))
sketch1.addConstraint(Sketcher.Constraint("DistanceY", -1, 1, 0, 2, 17.437973))
pad1 = body.newObject("PartDesign::Pad", "Pad")
pad1.Profile = sketch1
pad1.Length = 0.5
pad1.Reversed = True

doc.recompute()
